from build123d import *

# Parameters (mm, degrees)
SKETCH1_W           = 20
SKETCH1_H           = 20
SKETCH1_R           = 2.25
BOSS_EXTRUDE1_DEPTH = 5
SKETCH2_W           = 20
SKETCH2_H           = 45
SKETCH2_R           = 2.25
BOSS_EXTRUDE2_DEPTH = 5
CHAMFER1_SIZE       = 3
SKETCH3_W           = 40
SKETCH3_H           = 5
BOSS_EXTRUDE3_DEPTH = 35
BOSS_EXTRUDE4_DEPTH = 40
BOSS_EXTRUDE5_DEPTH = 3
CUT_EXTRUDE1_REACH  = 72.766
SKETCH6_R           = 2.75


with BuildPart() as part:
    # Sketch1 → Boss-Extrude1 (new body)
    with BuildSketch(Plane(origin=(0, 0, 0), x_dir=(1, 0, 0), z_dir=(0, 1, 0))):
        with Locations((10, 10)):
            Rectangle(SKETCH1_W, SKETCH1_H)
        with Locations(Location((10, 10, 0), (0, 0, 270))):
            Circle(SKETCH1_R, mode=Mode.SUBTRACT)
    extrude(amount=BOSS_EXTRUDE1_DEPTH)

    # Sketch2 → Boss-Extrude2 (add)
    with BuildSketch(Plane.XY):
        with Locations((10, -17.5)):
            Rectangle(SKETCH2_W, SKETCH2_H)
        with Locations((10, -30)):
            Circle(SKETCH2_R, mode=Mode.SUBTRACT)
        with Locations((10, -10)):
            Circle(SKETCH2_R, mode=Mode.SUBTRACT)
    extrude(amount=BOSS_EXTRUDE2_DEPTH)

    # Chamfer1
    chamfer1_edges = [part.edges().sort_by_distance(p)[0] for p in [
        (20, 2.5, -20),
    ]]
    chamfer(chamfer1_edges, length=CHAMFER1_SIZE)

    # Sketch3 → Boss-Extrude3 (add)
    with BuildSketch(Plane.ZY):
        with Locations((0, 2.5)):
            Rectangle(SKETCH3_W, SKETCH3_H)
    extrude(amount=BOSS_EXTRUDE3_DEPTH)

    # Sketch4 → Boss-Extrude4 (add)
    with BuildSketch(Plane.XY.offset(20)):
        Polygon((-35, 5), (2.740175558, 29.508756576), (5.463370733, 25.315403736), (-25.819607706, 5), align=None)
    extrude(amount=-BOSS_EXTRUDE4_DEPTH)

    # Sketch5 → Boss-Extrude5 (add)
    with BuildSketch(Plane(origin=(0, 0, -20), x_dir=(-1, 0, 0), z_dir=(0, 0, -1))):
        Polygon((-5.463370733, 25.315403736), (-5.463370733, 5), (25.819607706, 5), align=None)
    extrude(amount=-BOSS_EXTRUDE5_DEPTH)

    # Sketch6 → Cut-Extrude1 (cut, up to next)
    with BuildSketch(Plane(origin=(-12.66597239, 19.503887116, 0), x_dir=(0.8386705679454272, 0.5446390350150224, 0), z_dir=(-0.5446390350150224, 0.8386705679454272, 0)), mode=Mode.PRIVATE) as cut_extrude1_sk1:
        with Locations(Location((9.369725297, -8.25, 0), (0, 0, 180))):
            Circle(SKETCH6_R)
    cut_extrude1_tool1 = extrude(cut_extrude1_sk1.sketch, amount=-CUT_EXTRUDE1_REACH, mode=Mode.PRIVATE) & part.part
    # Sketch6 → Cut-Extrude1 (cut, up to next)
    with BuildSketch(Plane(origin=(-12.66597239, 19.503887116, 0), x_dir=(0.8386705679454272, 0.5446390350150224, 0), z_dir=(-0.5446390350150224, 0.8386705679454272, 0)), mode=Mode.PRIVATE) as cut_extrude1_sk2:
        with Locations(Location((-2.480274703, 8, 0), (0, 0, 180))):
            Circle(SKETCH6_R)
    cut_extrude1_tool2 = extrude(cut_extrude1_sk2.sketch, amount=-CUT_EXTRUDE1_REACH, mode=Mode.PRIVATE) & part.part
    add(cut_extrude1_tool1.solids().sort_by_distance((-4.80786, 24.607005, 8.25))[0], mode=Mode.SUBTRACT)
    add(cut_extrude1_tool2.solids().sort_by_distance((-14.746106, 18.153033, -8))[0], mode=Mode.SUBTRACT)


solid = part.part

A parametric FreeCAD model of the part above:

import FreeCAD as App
import Part
import Sketcher

V = App.Vector
Q = App.Units.Quantity


def edges_at(feature, points):
    """Names of the edges that pass closest to the given points."""
    edges = feature.Shape.Edges
    near = lambda p: min(range(len(edges)), key=lambda i: edges[i].distToShape(Part.Vertex(*p))[0])
    return sorted({f"Edge{near(p) + 1}" for p in points})


def add_polygon(sketch, points):
    """Adds a closed chain of lines whose ends are joined by coincident constraints."""
    first, n = sketch.GeometryCount, len(points)
    for a, b in zip(points, points[1:] + points[:1]):
        sketch.addGeometry(Part.LineSegment(App.Vector(*a, 0), App.Vector(*b, 0)), False)
    for i in range(n):
        sketch.addConstraint(Sketcher.Constraint("Coincident", first + i, 2, first + (i + 1) % n, 1))

doc = App.newDocument("Part")
body = doc.addObject("PartDesign::Body", "Body")

# Sketch on XZ plane
sketch1 = doc.addObject("Sketcher::SketchObject", "Sketch")
body.addObject(sketch1)
sketch1.AttachmentSupport = (doc.XZ_Plane, [""])
sketch1.MapMode = "FlatFace"
add_polygon(sketch1, [(0, -20), (0, 0), (20, 0), (20, -20)])  # lines 0-3
sketch1.addGeometry(Part.Circle(V(10, -10, 0), V(0, 0, 1), 2.2), False)  # 4
sketch1.addConstraint([
    Sketcher.Constraint("Vertical", 0),
    Sketcher.Constraint("Horizontal", 1),
    Sketcher.Constraint("Vertical", 2),
    Sketcher.Constraint("Horizontal", 3),
    Sketcher.Constraint("Coincident", 0, 2, -1, 1),
    Sketcher.Constraint("Equal", 3, 0),
    Sketcher.Constraint("Diameter", 4, 4.5),
    Sketcher.Constraint("DistanceX", 1, 1, 1, 2, 20.0),
    Sketcher.Constraint("DistanceX", -1, 1, 4, 3, 10.0),
    Sketcher.Constraint("DistanceY", 4, 3, -1, 1, 10.0),
])
pad1 = doc.addObject("PartDesign::Pad", "Pad")
body.addObject(pad1)
pad1.Profile = sketch1
pad1.Length = 5
pad1.Reversed = True

# Sketch on XY plane
sketch2 = doc.addObject("Sketcher::SketchObject", "Sketch001")
body.addObject(sketch2)
sketch2.AttachmentSupport = (doc.XY_Plane, [""])
sketch2.MapMode = "FlatFace"
add_polygon(sketch2, [(0, 5), (0, -40), (20, -40), (20, 5)])  # lines 0-3
sketch2.addGeometry(Part.Circle(V(10, -30, 0), V(0, 0, 1), 2.2), False)  # 4
sketch2.addGeometry(Part.Circle(V(10, -10, 0), V(0, 0, 1), 2.2), False)  # 5
sketch2.addConstraint([
    Sketcher.Constraint("Vertical", 0),
    Sketcher.Constraint("Horizontal", 1),
    Sketcher.Constraint("Vertical", 2),
    Sketcher.Constraint("Horizontal", 3),
    Sketcher.Constraint("Equal", 4, 5),
    Sketcher.Constraint("PointOnObject", 0, 2, -2),
    Sketcher.Constraint("Vertical", 4, 3, 5, 3),
    Sketcher.Constraint("Diameter", 4, 4.5),
    Sketcher.Constraint("DistanceX", 1, 1, 1, 2, 20.0),
    Sketcher.Constraint("DistanceY", 0, 2, 0, 1, 45.0),
    Sketcher.Constraint("DistanceX", -1, 1, 4, 3, 10.0),
    Sketcher.Constraint("DistanceY", 4, 3, -1, 1, 30.0),
    Sketcher.Constraint("DistanceY", 5, 3, -1, 1, 10.0),
    Sketcher.Constraint("DistanceY", 0, 2, -1, 1, 40.0),
])
pad2 = doc.addObject("PartDesign::Pad", "Pad001")
body.addObject(pad2)
pad2.Profile = sketch2
pad2.Length = 5
doc.recompute()

chamfer = doc.addObject("PartDesign::Chamfer", "Chamfer")
body.addObject(chamfer)
chamfer.Base = (pad2, edges_at(pad2, [(20, 2.5, -20)]))
chamfer.Size = 3

# Sketch on YZ plane
sketch3 = doc.addObject("Sketcher::SketchObject", "Sketch002")
body.addObject(sketch3)
sketch3.AttachmentSupport = (doc.YZ_Plane, [""])
sketch3.MapMode = "FlatFace"
add_polygon(sketch3, [(5, -20), (0, -20), (0, 20), (5, 20)])  # lines 0-3
sketch3.addConstraint([
    Sketcher.Constraint("Horizontal", 0),
    Sketcher.Constraint("Vertical", 1),
    Sketcher.Constraint("Horizontal", 2),
    Sketcher.Constraint("Vertical", 3),
    Sketcher.Constraint("Symmetric", 0, 2, 1, 2, -1, 1),
    Sketcher.Constraint("DistanceX", 0, 2, 0, 1, 5.0),
    Sketcher.Constraint("DistanceY", 1, 1, 1, 2, 40.0),
])
pad3 = doc.addObject("PartDesign::Pad", "Pad002")
body.addObject(pad3)
pad3.Profile = sketch3
pad3.Length = 35
pad3.Reversed = True

# Sketch on XY plane
sketch4 = doc.addObject("Sketcher::SketchObject", "Sketch003")
body.addObject(sketch4)
sketch4.AttachmentSupport = (doc.XY_Plane, [""])
sketch4.MapMode = "FlatFace"
sketch4.AttachmentOffset = App.Placement(V(0, 0, 20), App.Rotation())
add_polygon(sketch4, [(3, 30), (-35, 5), (-26, 5), (5, 25)])  # lines 0-3
sketch4.addConstraint([
    Sketcher.Constraint("Horizontal", 1),
    Sketcher.Constraint("Parallel", 0, 2),
    Sketcher.Constraint("Perpendicular", 2, 3),
    Sketcher.Constraint("Angle", 0, Q("-147 deg")),
    Sketcher.Constraint("Distance", 0, 45.0),
    Sketcher.Constraint("Distance", 3, 5.0),
    Sketcher.Constraint("DistanceX", 0, 2, -1, 1, 35.0),
    Sketcher.Constraint("DistanceY", -1, 1, 0, 2, 5.0),
])
pad4 = doc.addObject("PartDesign::Pad", "Pad003")
body.addObject(pad4)
pad4.Profile = sketch4
pad4.Length = 40
pad4.Reversed = True

# Sketch on XY plane
sketch5 = doc.addObject("Sketcher::SketchObject", "Sketch004")
body.addObject(sketch5)
sketch5.AttachmentSupport = (doc.XY_Plane, [""])
sketch5.MapMode = "FlatFace"
sketch5.AttachmentOffset = App.Placement(V(0, 0, -20), App.Rotation())
add_polygon(sketch5, [(5, 25), (5, 5), (-26, 5)])  # lines 0-2
sketch5.addConstraint([
    Sketcher.Constraint("Vertical", 0),
    Sketcher.Constraint("Horizontal", 1),
    Sketcher.Constraint("Angle", 2, Q("33 deg")),
    Sketcher.Constraint("DistanceY", -1, 1, 0, 2, 5.0),
    Sketcher.Constraint("DistanceX", 1, 2, 1, 1, 31.282978),
    Sketcher.Constraint("DistanceX", -1, 1, 0, 2, 5.463371),
])
pad5 = doc.addObject("PartDesign::Pad", "Pad004")
body.addObject(pad5)
pad5.Profile = sketch5
pad5.Length = 3

# Sketch on an angled plane
sketch6 = doc.addObject("Sketcher::SketchObject", "Sketch005")
body.addObject(sketch6)
sketch6.Placement = App.Placement(V(-12.665972, 19.503887, 0), App.Rotation(V(0.838670568, 0.544639035, 0), V(0, 0, -1), V(-0.544639035, 0.838670568, 0), "ZXY"))
sketch6.addGeometry(Part.Circle(V(9.4, -8.3, 0), V(0, 0, 1), 2.8), False)
sketch6.addConstraint([
    Sketcher.Constraint("Diameter", 0, 5.5),
    Sketcher.Constraint("DistanceY", 0, 3, -1, 1, 8.25),
    Sketcher.Constraint("DistanceX", -1, 1, 0, 3, 9.369725),
])
pocket1 = doc.addObject("PartDesign::Pocket", "Pocket")
body.addObject(pocket1)
pocket1.Profile = sketch6
pocket1.Type = "UpToFirst"

# Sketch on an angled plane
sketch7 = doc.addObject("Sketcher::SketchObject", "Sketch006")
body.addObject(sketch7)
sketch7.Placement = App.Placement(V(-12.665972, 19.503887, 0), App.Rotation(V(0.838670568, 0.544639035, 0), V(0, 0, -1), V(-0.544639035, 0.838670568, 0), "ZXY"))
sketch7.addGeometry(Part.Circle(V(-2.5, 8, 0), V(0, 0, 1), 2.8), False)
sketch7.addConstraint([
    Sketcher.Constraint("Diameter", 0, 5.5),
    Sketcher.Constraint("DistanceY", -1, 1, 0, 3, 8.0),
    Sketcher.Constraint("DistanceX", 0, 3, -1, 1, 2.480275),
])
pocket2 = doc.addObject("PartDesign::Pocket", "Pocket001")
body.addObject(pocket2)
pocket2.Profile = sketch7
pocket2.Type = "UpToFirst"

doc.recompute()
